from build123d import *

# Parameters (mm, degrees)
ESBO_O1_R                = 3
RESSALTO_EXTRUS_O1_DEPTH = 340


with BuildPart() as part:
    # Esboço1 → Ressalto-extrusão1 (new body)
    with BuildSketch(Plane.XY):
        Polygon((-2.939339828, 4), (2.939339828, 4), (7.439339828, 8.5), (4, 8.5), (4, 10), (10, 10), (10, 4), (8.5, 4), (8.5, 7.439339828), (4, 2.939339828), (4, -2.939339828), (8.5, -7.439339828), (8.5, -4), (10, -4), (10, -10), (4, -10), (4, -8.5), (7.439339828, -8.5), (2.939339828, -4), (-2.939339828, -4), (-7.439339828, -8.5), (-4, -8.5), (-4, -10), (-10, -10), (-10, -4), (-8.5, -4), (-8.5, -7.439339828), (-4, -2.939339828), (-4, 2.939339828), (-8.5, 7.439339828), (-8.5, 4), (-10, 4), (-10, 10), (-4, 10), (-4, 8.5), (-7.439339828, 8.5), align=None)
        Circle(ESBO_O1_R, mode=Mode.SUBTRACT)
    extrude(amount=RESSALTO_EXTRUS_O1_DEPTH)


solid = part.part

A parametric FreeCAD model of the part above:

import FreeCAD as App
import Part
import Sketcher

V = App.Vector
Q = App.Units.Quantity


def add_polygon(sketch, points):
    """Adds a closed chain of lines whose ends are joined by coincident constraints."""
    first, n = sketch.GeometryCount, len(points)
    for a, b in zip(points, points[1:] + points[:1]):
        sketch.addGeometry(Part.LineSegment(App.Vector(*a, 0), App.Vector(*b, 0)), False)
    for i in range(n):
        sketch.addConstraint(Sketcher.Constraint("Coincident", first + i, 2, first + (i + 1) % n, 1))

doc = App.newDocument("Part")
body = doc.addObject("PartDesign::Body", "Body")

# Sketch on XY plane
sketch1 = body.newObject("Sketcher::SketchObject", "Sketch")
sketch1.AttachmentSupport = (doc.getObject("XY_Plane"), [""])
sketch1.MapMode = "FlatFace"
add_polygon(sketch1, [(2.93934, 4), (-2.93934, 4), (-7.43934, 8.5), (-4, 8.5), (-4, 10), (-10, 10), (-10, 4), (-8.5, 4), (-8.5, 7.43934), (-4, 2.93934), (-4, -2.93934), (-8.5, -7.43934), (-8.5, -4), (-10, -4), (-10, -10), (-4, -10), (-4, -8.5), (-7.43934, -8.5), (-2.93934, -4), (2.93934, -4), (7.43934, -8.5), (4, -8.5), (4, -10), (10, -10), (10, -4), (8.5, -4), (8.5, -7.43934), (4, -2.93934), (4, 2.93934), (8.5, 7.43934), (8.5, 4), (10, 4), (10, 10), (4, 10), (4, 8.5), (7.43934, 8.5)])  # lines 0-35
sketch1.addGeometry(Part.Circle(V(0, 0, 0), V(0, 0, 1), 3), False)  # 36
sketch1.addConstraint(Sketcher.Constraint("Horizontal", 0))
sketch1.addConstraint(Sketcher.Constraint("Horizontal", 2))
sketch1.addConstraint(Sketcher.Constraint("Vertical", 3))
sketch1.addConstraint(Sketcher.Constraint("Horizontal", 4))
sketch1.addConstraint(Sketcher.Constraint("Vertical", 5))
sketch1.addConstraint(Sketcher.Constraint("Horizontal", 6))
sketch1.addConstraint(Sketcher.Constraint("Vertical", 7))
sketch1.addConstraint(Sketcher.Constraint("Vertical", 9))
sketch1.addConstraint(Sketcher.Constraint("Vertical", 11))
sketch1.addConstraint(Sketcher.Constraint("Horizontal", 12))
sketch1.addConstraint(Sketcher.Constraint("Vertical", 13))
sketch1.addConstraint(Sketcher.Constraint("Horizontal", 14))
sketch1.addConstraint(Sketcher.Constraint("Vertical", 15))
sketch1.addConstraint(Sketcher.Constraint("Horizontal", 16))
sketch1.addConstraint(Sketcher.Constraint("Horizontal", 18))
sketch1.addConstraint(Sketcher.Constraint("Horizontal", 20))
sketch1.addConstraint(Sketcher.Constraint("Vertical", 21))
sketch1.addConstraint(Sketcher.Constraint("Horizontal", 22))
sketch1.addConstraint(Sketcher.Constraint("Vertical", 23))
sketch1.addConstraint(Sketcher.Constraint("Horizontal", 24))
sketch1.addConstraint(Sketcher.Constraint("Vertical", 25))
sketch1.addConstraint(Sketcher.Constraint("Vertical", 27))
sketch1.addConstraint(Sketcher.Constraint("Vertical", 29))
sketch1.addConstraint(Sketcher.Constraint("Horizontal", 30))
sketch1.addConstraint(Sketcher.Constraint("Vertical", 31))
sketch1.addConstraint(Sketcher.Constraint("Horizontal", 32))
sketch1.addConstraint(Sketcher.Constraint("Vertical", 33))
sketch1.addConstraint(Sketcher.Constraint("Horizontal", 34))
sketch1.addConstraint(Sketcher.Constraint("Coincident", 36, 3, -1, 1))
sketch1.addConstraint(Sketcher.Constraint("Symmetric", 0, 2, 18, 2, -1, 1))
sketch1.addConstraint(Sketcher.Constraint("Symmetric", 1, 2, 19, 2, -1, 1))
sketch1.addConstraint(Sketcher.Constraint("Symmetric", 3, 2, 21, 2, -1, 1))
sketch1.addConstraint(Sketcher.Constraint("Symmetric", 5, 2, 23, 2, -1, 1))
sketch1.addConstraint(Sketcher.Constraint("Symmetric", 7, 2, 25, 2, -1, 1))
sketch1.addConstraint(Sketcher.Constraint("Symmetric", 8, 2, 26, 2, -1, 1))
sketch1.addConstraint(Sketcher.Constraint("Symmetric", 10, 2, 28, 2, -1, 1))
sketch1.addConstraint(Sketcher.Constraint("Symmetric", 12, 2, 30, 2, -1, 1))
sketch1.addConstraint(Sketcher.Constraint("Symmetric", 14, 2, 32, 2, -1, 1))
sketch1.addConstraint(Sketcher.Constraint("Symmetric", 16, 2, 34, 2, -1, 1))
sketch1.addConstraint(Sketcher.Constraint("Symmetric", 16, 2, 19, 2, -2))
sketch1.addConstraint(Sketcher.Constraint("Symmetric", 14, 2, 21, 2, -2))
sketch1.addConstraint(Sketcher.Constraint("Symmetric", 12, 2, 23, 2, -2))
sketch1.addConstraint(Sketcher.Constraint("Symmetric", 10, 2, 25, 2, -2))
sketch1.addConstraint(Sketcher.Constraint("Parallel", 1, 8))
sketch1.addConstraint(Sketcher.Constraint("Perpendicular", 8, 10))
sketch1.addConstraint(Sketcher.Constraint("Parallel", 10, 17))
sketch1.addConstraint(Sketcher.Constraint("Perpendicular", 26, 28))
sketch1.addConstraint(Sketcher.Constraint("Parallel", 28, 35))
sketch1.addConstraint(Sketcher.Constraint("Horizontal", 0, 2, 5, 2))
sketch1.addConstraint(Sketcher.Constraint("Horizontal", 9, 2, 26, 2))
sketch1.addConstraint(Sketcher.Constraint("Vertical", 3, 2, 8, 2))
sketch1.addConstraint(Sketcher.Constraint("Equal", 30, 3))
sketch1.addConstraint(Sketcher.Constraint("Equal", 32, 5))
sketch1.addConstraint(Sketcher.Constraint("Equal", 34, 7))
sketch1.addConstraint(Sketcher.Constraint("Equal", 18, 9))
sketch1.addConstraint(Sketcher.Constraint("Diameter", 36, Q("6 mm")))
sketch1.addConstraint(Sketcher.Constraint("DistanceX", 4, 2, 4, 1, Q("6 mm")))
sketch1.addConstraint(Sketcher.Constraint("DistanceX", 6, 1, 6, 2, Q("1.5 mm")))
sketch1.addConstraint(Sketcher.Constraint("DistanceY", -1, 1, 0, 2, Q("4 mm")))
sketch1.addConstraint(Sketcher.Constraint("DistanceX", 0, 2, 0, 1, Q("5.87868 mm")))
pad1 = body.newObject("PartDesign::Pad", "Pad")
pad1.Profile = sketch1
pad1.Length = 340

doc.recompute()
